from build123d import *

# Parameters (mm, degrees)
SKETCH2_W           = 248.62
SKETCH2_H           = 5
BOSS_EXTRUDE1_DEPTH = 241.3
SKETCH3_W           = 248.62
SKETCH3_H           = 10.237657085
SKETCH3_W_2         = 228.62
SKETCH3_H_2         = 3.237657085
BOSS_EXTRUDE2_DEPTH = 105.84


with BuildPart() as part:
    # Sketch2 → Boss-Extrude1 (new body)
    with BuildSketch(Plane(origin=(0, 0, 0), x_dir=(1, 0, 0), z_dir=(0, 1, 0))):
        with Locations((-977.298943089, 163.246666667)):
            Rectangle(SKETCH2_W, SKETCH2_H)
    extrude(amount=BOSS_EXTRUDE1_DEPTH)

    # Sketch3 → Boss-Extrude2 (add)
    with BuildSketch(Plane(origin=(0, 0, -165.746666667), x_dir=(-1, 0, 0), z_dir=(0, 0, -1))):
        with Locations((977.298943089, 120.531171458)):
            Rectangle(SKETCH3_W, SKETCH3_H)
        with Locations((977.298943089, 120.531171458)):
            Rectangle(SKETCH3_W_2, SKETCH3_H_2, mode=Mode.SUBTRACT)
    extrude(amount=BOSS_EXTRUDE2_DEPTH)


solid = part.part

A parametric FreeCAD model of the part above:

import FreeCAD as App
import Part
import Sketcher

V = App.Vector
Q = App.Units.Quantity


def add_polygon(sketch, points):
    """Adds a closed chain of lines whose ends are joined by coincident constraints."""
    first, n = sketch.GeometryCount, len(points)
    for a, b in zip(points, points[1:] + points[:1]):
        sketch.addGeometry(Part.LineSegment(App.Vector(*a, 0), App.Vector(*b, 0)), False)
    for i in range(n):
        sketch.addConstraint(Sketcher.Constraint("Coincident", first + i, 2, first + (i + 1) % n, 1))

doc = App.newDocument("Part")
body = doc.addObject("PartDesign::Body", "Body")

# Sketch on XZ plane
sketch1 = body.newObject("Sketcher::SketchObject", "Sketch")
sketch1.AttachmentSupport = (doc.getObject("XZ_Plane"), [""])
sketch1.MapMode = "FlatFace"
add_polygon(sketch1, [(-1102, -166), (-1102, -161), (-853, -161), (-853, -166)])  # lines 0-3
sketch1.addConstraint([
    Sketcher.Constraint("Vertical", 0),
    Sketcher.Constraint("Horizontal", 1),
    Sketcher.Constraint("Vertical", 2),
    Sketcher.Constraint("Horizontal", 3),
    Sketcher.Constraint("DistanceY", 0, 1, 0, 2, Q("5 mm")),
    Sketcher.Constraint("DistanceX", 1, 1, 1, 2, Q("248.62 mm")),
    Sketcher.Constraint("DistanceX", 0, 2, -1, 1, Q("1101.608943 mm")),
    Sketcher.Constraint("DistanceY", 0, 2, -1, 1, Q("160.746667 mm")),
])
pad1 = body.newObject("PartDesign::Pad", "Pad")
pad1.Profile = sketch1
pad1.Length = 241.3
pad1.Reversed = True

# Sketch on XY plane
sketch2 = body.newObject("Sketcher::SketchObject", "Sketch001")
sketch2.AttachmentSupport = (doc.getObject("XY_Plane"), [""])
sketch2.MapMode = "FlatFace"
sketch2.AttachmentOffset = App.Placement(V(0, 0, -165.746667), App.Rotation())
add_polygon(sketch2, [(-853, 125.7), (-853, 115.4), (-1101.6, 115.4), (-1101.6, 125.7)])  # lines 0-3
add_polygon(sketch2, [(-1091.6, 118.9), (-863, 118.9), (-863, 122.2), (-1091.6, 122.2)])  # lines 4-7
sketch2.addConstraint([
    Sketcher.Constraint("Vertical", 0),
    Sketcher.Constraint("Horizontal", 1),
    Sketcher.Constraint("Vertical", 2),
    Sketcher.Constraint("Horizontal", 3),
    Sketcher.Constraint("Horizontal", 4),
    Sketcher.Constraint("Vertical", 5),
    Sketcher.Constraint("Horizontal", 6),
    Sketcher.Constraint("Vertical", 7),
    Sketcher.Constraint("DistanceX", 4, 2, 0, 2, Q("10 mm")),
    Sketcher.Constraint("DistanceX", 2, 2, 6, 2, Q("10 mm")),
    Sketcher.Constraint("DistanceX", 1, 2, 1, 1, Q("248.62 mm")),
    Sketcher.Constraint("DistanceY", 0, 2, 4, 2, Q("3.5 mm")),
    Sketcher.Constraint("DistanceY", 5, 2, 3, 2, Q("3.5 mm")),
    Sketcher.Constraint("DistanceY", -1, 1, 2, 2, Q("125.65 mm")),
    Sketcher.Constraint("DistanceY", 0, 2, 0, 1, Q("10.237657 mm")),
    Sketcher.Constraint("DistanceX", 0, 2, -1, 1, Q("852.988943 mm")),
])
pad2 = body.newObject("PartDesign::Pad", "Pad001")
pad2.Profile = sketch2
pad2.Length = 105.84
pad2.Reversed = True

doc.recompute()
